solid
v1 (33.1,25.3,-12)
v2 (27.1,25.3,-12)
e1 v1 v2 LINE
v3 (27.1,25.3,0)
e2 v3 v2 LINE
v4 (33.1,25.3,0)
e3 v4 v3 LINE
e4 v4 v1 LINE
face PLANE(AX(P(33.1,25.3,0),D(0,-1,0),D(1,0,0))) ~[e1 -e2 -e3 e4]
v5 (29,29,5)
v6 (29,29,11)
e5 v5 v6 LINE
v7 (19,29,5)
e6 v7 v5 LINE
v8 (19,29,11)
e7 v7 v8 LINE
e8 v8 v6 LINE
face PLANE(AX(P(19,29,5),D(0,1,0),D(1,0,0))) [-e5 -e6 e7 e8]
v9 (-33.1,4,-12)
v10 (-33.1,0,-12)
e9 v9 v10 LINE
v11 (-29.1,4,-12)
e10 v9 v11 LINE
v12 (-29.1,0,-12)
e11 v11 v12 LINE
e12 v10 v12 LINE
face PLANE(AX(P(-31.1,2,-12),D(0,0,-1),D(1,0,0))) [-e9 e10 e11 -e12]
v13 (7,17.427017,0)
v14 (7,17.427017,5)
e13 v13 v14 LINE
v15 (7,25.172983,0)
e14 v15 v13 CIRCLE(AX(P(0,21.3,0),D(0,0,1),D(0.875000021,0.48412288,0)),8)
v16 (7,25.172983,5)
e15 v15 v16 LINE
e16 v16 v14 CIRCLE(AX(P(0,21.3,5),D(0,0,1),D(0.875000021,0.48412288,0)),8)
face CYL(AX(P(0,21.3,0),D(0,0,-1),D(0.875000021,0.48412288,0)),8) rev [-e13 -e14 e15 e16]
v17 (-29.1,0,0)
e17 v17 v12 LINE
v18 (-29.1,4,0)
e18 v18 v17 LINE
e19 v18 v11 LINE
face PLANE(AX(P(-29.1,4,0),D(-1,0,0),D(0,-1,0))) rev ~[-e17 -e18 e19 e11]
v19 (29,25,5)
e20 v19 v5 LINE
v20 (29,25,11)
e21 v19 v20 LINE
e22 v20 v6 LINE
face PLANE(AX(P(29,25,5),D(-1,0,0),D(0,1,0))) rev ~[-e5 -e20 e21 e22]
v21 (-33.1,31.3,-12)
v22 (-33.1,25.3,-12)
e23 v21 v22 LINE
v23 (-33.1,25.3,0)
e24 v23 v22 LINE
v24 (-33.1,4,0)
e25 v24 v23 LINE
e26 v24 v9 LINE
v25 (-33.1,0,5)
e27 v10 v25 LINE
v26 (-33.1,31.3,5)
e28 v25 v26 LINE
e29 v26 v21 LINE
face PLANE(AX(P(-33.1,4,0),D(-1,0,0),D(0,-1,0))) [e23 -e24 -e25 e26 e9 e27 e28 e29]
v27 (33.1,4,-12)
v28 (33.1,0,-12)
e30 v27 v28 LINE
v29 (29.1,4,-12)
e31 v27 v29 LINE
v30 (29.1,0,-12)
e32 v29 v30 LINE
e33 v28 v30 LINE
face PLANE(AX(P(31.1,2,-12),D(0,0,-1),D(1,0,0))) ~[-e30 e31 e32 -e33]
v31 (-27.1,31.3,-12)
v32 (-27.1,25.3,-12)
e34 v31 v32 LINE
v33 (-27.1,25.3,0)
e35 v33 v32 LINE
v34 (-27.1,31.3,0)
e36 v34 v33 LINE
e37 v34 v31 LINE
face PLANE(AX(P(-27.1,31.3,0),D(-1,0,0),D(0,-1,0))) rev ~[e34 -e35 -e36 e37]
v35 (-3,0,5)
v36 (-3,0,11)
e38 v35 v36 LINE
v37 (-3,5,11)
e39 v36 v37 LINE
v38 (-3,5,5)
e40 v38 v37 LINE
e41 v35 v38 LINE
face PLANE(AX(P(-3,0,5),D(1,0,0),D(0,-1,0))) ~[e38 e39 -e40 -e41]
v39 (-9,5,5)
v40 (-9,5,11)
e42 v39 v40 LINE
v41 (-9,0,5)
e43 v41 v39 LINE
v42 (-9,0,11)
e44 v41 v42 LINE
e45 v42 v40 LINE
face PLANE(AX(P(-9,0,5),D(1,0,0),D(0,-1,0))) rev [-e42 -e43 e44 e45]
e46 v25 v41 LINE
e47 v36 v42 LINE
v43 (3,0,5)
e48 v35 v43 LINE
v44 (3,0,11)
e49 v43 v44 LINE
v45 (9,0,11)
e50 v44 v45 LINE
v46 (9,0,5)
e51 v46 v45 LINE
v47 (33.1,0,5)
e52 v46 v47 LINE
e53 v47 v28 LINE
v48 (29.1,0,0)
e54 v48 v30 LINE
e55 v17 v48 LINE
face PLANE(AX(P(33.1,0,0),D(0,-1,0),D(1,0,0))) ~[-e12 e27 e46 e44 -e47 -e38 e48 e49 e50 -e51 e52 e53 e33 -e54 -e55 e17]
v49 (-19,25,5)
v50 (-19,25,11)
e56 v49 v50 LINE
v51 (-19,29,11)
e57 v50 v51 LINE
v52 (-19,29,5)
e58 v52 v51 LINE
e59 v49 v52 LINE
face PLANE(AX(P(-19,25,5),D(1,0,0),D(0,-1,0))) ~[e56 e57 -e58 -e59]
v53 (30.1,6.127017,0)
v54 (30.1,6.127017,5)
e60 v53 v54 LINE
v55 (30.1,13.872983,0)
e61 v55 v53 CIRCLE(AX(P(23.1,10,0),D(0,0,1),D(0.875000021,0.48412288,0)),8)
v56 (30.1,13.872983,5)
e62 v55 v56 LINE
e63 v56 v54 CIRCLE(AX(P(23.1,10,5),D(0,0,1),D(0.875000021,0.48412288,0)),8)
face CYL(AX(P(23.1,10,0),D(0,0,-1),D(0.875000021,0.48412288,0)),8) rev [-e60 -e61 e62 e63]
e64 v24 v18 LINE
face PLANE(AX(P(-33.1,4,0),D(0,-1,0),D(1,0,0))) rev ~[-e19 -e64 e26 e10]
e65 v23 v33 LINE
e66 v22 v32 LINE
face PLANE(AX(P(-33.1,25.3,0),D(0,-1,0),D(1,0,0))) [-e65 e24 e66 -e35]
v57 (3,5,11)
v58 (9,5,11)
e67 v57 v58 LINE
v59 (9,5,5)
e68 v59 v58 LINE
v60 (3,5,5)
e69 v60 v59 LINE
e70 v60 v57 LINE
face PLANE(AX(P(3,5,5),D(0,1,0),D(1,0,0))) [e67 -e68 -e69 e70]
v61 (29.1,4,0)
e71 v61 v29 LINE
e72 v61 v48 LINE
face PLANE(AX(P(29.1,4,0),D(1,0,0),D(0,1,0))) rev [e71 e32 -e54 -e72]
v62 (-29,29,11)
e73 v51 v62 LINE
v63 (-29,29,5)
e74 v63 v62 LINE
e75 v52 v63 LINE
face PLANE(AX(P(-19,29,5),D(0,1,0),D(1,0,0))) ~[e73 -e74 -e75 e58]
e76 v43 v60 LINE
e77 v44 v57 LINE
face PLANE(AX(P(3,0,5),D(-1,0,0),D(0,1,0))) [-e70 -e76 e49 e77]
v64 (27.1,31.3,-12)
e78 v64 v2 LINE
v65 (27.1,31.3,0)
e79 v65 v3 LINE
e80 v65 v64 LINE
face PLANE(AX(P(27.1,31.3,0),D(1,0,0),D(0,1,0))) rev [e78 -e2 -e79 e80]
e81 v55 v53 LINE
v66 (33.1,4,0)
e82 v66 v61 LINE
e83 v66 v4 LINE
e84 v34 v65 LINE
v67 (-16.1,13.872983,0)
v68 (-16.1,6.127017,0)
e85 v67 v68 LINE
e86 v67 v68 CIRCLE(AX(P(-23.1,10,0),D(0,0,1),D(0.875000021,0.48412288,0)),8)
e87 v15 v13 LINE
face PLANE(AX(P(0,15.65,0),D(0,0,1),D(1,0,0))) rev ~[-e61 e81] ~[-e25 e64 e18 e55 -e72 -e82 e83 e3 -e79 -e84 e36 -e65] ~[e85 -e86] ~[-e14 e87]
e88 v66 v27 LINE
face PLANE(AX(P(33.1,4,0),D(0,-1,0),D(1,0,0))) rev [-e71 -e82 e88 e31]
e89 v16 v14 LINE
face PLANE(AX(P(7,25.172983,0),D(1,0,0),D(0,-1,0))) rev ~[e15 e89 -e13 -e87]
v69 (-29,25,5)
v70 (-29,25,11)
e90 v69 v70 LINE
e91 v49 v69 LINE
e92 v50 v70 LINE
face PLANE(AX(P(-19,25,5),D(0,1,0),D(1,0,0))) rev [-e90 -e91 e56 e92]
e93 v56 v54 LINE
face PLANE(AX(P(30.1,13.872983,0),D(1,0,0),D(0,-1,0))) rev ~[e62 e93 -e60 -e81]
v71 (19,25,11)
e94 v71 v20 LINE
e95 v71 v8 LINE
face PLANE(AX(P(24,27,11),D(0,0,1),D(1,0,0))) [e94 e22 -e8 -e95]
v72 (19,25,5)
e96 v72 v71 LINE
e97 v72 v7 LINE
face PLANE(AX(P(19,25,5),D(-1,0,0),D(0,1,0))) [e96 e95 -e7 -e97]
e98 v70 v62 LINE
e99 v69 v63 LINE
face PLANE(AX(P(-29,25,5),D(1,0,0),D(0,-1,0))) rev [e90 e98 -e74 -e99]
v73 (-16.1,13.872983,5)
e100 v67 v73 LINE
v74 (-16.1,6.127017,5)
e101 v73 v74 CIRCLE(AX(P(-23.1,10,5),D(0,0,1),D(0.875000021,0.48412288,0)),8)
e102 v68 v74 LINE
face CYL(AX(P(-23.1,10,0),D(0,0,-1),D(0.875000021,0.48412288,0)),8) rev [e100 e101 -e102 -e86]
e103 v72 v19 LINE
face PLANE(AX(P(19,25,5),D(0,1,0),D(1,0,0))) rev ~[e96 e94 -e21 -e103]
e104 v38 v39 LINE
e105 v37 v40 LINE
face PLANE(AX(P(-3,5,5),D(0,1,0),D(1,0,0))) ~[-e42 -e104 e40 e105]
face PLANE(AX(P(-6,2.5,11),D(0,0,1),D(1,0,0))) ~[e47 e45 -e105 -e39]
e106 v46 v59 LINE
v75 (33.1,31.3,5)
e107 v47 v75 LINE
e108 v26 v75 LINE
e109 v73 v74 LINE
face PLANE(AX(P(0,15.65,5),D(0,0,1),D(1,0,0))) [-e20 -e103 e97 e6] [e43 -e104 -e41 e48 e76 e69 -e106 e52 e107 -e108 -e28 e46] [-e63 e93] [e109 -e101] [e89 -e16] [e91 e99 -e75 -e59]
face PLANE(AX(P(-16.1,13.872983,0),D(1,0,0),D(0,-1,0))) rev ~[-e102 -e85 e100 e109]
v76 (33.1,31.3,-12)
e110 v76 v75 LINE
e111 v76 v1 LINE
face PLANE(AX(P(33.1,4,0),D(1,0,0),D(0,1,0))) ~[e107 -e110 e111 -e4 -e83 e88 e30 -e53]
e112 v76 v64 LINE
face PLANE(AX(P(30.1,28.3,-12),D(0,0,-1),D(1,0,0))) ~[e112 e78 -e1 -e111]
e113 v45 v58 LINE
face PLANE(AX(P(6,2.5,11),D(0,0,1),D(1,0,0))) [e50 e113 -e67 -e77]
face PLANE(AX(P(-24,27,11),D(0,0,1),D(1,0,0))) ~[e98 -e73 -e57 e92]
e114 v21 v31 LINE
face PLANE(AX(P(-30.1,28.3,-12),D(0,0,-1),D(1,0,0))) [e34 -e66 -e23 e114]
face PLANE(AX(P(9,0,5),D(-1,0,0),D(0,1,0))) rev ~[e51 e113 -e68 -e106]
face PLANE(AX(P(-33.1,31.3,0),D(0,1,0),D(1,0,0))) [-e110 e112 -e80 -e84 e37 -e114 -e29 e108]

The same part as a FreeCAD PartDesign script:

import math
import FreeCAD as App
import Part
import Sketcher
from FreeCAD import Vector
Q = App.Units.Quantity


def add_polygon(sketch, points):
    """Adds a closed chain of lines whose ends are joined by coincident constraints."""
    first, n = sketch.GeometryCount, len(points)
    for a, b in zip(points, points[1:] + points[:1]):
        sketch.addGeometry(Part.LineSegment(App.Vector(*a, 0), App.Vector(*b, 0)), False)
    for i in range(n):
        sketch.addConstraint(Sketcher.Constraint("Coincident", first + i, 2, first + (i + 1) % n, 1))

doc = App.newDocument("Part")
body = doc.addObject("PartDesign::Body", "Body")

sketch1 = doc.addObject("Sketcher::SketchObject", "Sketch")
body.addObject(sketch1)
sketch1.AttachmentSupport = (doc.XY_Plane, [""])
sketch1.MapMode = "FlatFace"
add_polygon(sketch1, [(-33, 31), (-33, 0), (33, 0), (33, 31)])
sketch1.addGeometry(Part.ArcOfCircle(Part.Circle(Vector(-23, 10, 0), Vector(0, 0, 1), 8), math.radians(29), math.radians(331)), False)
sketch1.addGeometry(Part.LineSegment(Vector(-16, 14, 0), Vector(-16, 6, 0)), False)
sketch1.addGeometry(Part.ArcOfCircle(Part.Circle(Vector(23, 10, 0), Vector(0, 0, 1), 8), math.radians(29), math.radians(331)), False)
sketch1.addGeometry(Part.LineSegment(Vector(30, 14, 0), Vector(30, 6, 0)), False)
sketch1.addGeometry(Part.ArcOfCircle(Part.Circle(Vector(0, 21, 0), Vector(0, 0, 1), 8), math.radians(29), math.radians(331)), False)
sketch1.addGeometry(Part.LineSegment(Vector(7, 25, 0), Vector(7, 17, 0)), False)
sketch1.addConstraint([
    Sketcher.Constraint("Coincident", 4, 1, 5, 1),
    Sketcher.Constraint("Coincident", 5, 2, 4, 2),
    Sketcher.Constraint("Coincident", 6, 1, 7, 1),
    Sketcher.Constraint("Coincident", 7, 2, 6, 2),
    Sketcher.Constraint("Coincident", 8, 1, 9, 1),
    Sketcher.Constraint("Coincident", 9, 2, 8, 2),
    Sketcher.Constraint("Vertical", 0),
    Sketcher.Constraint("Horizontal", 1),
    Sketcher.Constraint("Vertical", 2),
    Sketcher.Constraint("Horizontal", 3),
    Sketcher.Constraint("Vertical", 5),
    Sketcher.Constraint("Vertical", 7),
    Sketcher.Constraint("Vertical", 9),
    Sketcher.Constraint("Equal", 4, 6),
    Sketcher.Constraint("Equal", 6, 8),
    Sketcher.Constraint("Symmetric", 0, 2, 1, 2, -1, 1),
    Sketcher.Constraint("Symmetric", 4, 3, 6, 3, -2),
    Sketcher.Constraint("PointOnObject", 8, 3, -2),
    Sketcher.Constraint("Horizontal", 4, 1, 6, 1),
    Sketcher.Constraint("Equal", 7, 9),
    Sketcher.Constraint("Radius", 4, Q("8 mm")),
    Sketcher.Constraint("DistanceX", 1, 1, 1, 2, Q("66.2 mm")),
    Sketcher.Constraint("DistanceY", 0, 2, 0, 1, Q("31.3 mm")),
    Sketcher.Constraint("DistanceY", -1, 1, 4, 3, Q("10 mm")),
    Sketcher.Constraint("DistanceX", -1, 1, 8, 1, Q("7 mm")),
    Sketcher.Constraint("DistanceX", 0, 2, 4, 3, Q("10 mm")),
    Sketcher.Constraint("DistanceY", 8, 3, 2, 2, Q("10 mm")),
])
pad1 = doc.addObject("PartDesign::Pad", "Pad")
body.addObject(pad1)
pad1.Profile = sketch1
pad1.Length = 5

sketch2 = doc.addObject("Sketcher::SketchObject", "Sketch001")
body.addObject(sketch2)
sketch2.AttachmentSupport = (doc.XY_Plane, [""])
sketch2.MapMode = "FlatFace"
sketch2.AttachmentOffset = App.Placement(Vector(0, 0, 5), App.Rotation())
add_polygon(sketch2, [(19, 29), (19, 25), (29, 25), (29, 29)])
add_polygon(sketch2, [(3, 5), (3, 0), (9, 0), (9, 5)])
sketch2.addConstraint([
    Sketcher.Constraint("Vertical", 0),
    Sketcher.Constraint("Horizontal", 1),
    Sketcher.Constraint("Vertical", 2),
    Sketcher.Constraint("Horizontal", 3),
    Sketcher.Constraint("Vertical", 4),
    Sketcher.Constraint("Horizontal", 5),
    Sketcher.Constraint("Vertical", 6),
    Sketcher.Constraint("Horizontal", 7),
    Sketcher.Constraint("PointOnObject", 4, 2, -1),
    Sketcher.Constraint("DistanceX", 1, 1, 1, 2, Q("10 mm")),
    Sketcher.Constraint("DistanceX", 5, 1, 5, 2, Q("6 mm")),
    Sketcher.Constraint("DistanceY", 0, 2, 0, 1, Q("4 mm")),
    Sketcher.Constraint("DistanceY", 4, 2, 4, 1, Q("5 mm")),
    Sketcher.Constraint("DistanceX", -1, 1, 0, 2, Q("19 mm")),
    Sketcher.Constraint("DistanceY", -1, 1, 0, 2, Q("25 mm")),
    Sketcher.Constraint("DistanceX", -1, 1, 4, 2, Q("3 mm")),
])
pad2 = doc.addObject("PartDesign::Pad", "Pad001")
body.addObject(pad2)
pad2.Profile = sketch2
pad2.Length = 6
doc.recompute()

mirrored = doc.addObject("PartDesign::Mirrored", "Mirrored")
body.addObject(mirrored)
mirrored.Originals = [pad2]
mirrored.MirrorPlane = (doc.YZ_Plane, [""])
body.Tip = mirrored

sketch3 = doc.addObject("Sketcher::SketchObject", "Sketch002")
body.addObject(sketch3)
sketch3.AttachmentSupport = (doc.XY_Plane, [""])
sketch3.MapMode = "FlatFace"
add_polygon(sketch3, [(-33.1, 0), (-33.1, 4), (-29.1, 4), (-29.1, 0)])
add_polygon(sketch3, [(-33.1, 25.3), (-33.1, 31.3), (-27.1, 31.3), (-27.1, 25.3)])
sketch3.addConstraint([
    Sketcher.Constraint("Vertical", 0),
    Sketcher.Constraint("Horizontal", 1),
    Sketcher.Constraint("Vertical", 2),
    Sketcher.Constraint("Horizontal", 3),
    Sketcher.Constraint("Vertical", 4),
    Sketcher.Constraint("Horizontal", 5),
    Sketcher.Constraint("Vertical", 6),
    Sketcher.Constraint("Horizontal", 7),
    Sketcher.Constraint("PointOnObject", 2, 2, -1),
    Sketcher.Constraint("Vertical", 3, 2, 4, 2),
    Sketcher.Constraint("Equal", 3, 0),
    Sketcher.Constraint("Equal", 7, 4),
    Sketcher.Constraint("DistanceX", 1, 1, 1, 2, Q("4 mm")),
    Sketcher.Constraint("DistanceX", 5, 1, 5, 2, Q("6 mm")),
    Sketcher.Constraint("DistanceX", 0, 2, -1, 1, Q("33.1 mm")),
    Sketcher.Constraint("DistanceY", -1, 1, 4, 2, Q("31.3 mm")),
])
pad3 = doc.addObject("PartDesign::Pad", "Pad002")
body.addObject(pad3)
pad3.Profile = sketch3
pad3.Length = 12
pad3.Reversed = True
doc.recompute()

mirrored2 = doc.addObject("PartDesign::Mirrored", "Mirrored001")
body.addObject(mirrored2)
mirrored2.Originals = [pad3]
mirrored2.MirrorPlane = (doc.YZ_Plane, [""])
body.Tip = mirrored2

doc.recompute()
